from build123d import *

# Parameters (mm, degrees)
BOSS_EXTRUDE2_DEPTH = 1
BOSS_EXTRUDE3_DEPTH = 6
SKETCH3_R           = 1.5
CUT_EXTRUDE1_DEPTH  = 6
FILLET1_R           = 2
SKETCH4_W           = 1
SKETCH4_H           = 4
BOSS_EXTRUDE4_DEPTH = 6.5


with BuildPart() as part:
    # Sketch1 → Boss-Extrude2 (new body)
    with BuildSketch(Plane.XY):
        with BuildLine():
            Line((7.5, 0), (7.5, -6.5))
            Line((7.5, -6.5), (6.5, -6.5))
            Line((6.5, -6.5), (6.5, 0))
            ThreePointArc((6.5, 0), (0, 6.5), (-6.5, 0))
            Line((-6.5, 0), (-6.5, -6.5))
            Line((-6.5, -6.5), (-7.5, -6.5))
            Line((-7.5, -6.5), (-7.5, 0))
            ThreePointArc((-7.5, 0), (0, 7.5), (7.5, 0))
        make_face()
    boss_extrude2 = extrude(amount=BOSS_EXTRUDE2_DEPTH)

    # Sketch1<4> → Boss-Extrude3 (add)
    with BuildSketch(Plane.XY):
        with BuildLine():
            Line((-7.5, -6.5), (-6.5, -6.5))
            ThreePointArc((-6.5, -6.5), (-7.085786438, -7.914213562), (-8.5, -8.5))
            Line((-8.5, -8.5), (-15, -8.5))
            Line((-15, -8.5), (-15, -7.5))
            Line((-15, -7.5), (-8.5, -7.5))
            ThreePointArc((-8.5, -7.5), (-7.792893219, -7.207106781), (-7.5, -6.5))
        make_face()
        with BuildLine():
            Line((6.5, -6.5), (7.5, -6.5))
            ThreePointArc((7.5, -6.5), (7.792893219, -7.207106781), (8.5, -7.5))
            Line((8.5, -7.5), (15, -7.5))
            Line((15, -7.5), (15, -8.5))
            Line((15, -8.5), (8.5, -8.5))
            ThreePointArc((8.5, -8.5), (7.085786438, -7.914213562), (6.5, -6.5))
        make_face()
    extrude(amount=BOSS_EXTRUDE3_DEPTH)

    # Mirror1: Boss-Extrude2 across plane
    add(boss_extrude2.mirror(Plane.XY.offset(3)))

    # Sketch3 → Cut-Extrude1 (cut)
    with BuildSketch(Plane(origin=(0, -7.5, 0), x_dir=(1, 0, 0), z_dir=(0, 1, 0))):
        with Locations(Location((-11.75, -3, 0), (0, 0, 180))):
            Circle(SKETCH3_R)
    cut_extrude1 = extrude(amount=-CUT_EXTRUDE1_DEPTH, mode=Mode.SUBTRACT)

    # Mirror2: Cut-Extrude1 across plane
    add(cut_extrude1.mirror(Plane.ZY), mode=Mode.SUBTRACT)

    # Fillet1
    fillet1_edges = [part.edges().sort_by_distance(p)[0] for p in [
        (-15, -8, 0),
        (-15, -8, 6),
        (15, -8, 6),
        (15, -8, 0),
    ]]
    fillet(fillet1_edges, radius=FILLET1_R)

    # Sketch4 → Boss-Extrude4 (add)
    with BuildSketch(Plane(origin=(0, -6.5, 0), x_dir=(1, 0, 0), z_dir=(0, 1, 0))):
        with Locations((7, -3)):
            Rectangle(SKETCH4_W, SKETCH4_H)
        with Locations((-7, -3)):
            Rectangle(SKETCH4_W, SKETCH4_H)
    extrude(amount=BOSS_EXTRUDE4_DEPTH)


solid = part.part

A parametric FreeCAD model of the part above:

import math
import FreeCAD as App
import Part
import Sketcher

V = App.Vector
Q = App.Units.Quantity


def edges_at(feature, points):
    """Names of the edges that pass closest to the given points."""
    edges = feature.Shape.Edges
    near = lambda p: min(range(len(edges)), key=lambda i: edges[i].distToShape(Part.Vertex(*p))[0])
    return sorted({f"Edge{near(p) + 1}" for p in points})


def add_polygon(sketch, points):
    """Adds a closed chain of lines whose ends are joined by coincident constraints."""
    first, n = sketch.GeometryCount, len(points)
    for a, b in zip(points, points[1:] + points[:1]):
        sketch.addGeometry(Part.LineSegment(App.Vector(*a, 0), App.Vector(*b, 0)), False)
    for i in range(n):
        sketch.addConstraint(Sketcher.Constraint("Coincident", first + i, 2, first + (i + 1) % n, 1))

doc = App.newDocument("Part")
body = doc.addObject("PartDesign::Body", "Body")

# Sketch on XY plane
sketch1 = body.newObject("Sketcher::SketchObject", "Sketch")
sketch1.AttachmentSupport = (doc.getObject("XY_Plane"), [""])
sketch1.MapMode = "FlatFace"
sketch1.addGeometry(Part.LineSegment(V(7.5, -6.5, 0), V(7.5, 0, 0)), False)
sketch1.addGeometry(Part.ArcOfCircle(Part.Circle(V(0, 0, 0), V(0, 0, 1), 7.5), math.radians(0), math.radians(180)), False)
sketch1.addGeometry(Part.LineSegment(V(-7.5, 0, 0), V(-7.5, -6.5, 0)), False)
sketch1.addGeometry(Part.LineSegment(V(-7.5, -6.5, 0), V(-6.5, -6.5, 0)), False)
sketch1.addGeometry(Part.LineSegment(V(-6.5, -6.5, 0), V(-6.5, 0, 0)), False)
sketch1.addGeometry(Part.ArcOfCircle(Part.Circle(V(0, 0, 0), V(0, 0, 1), 6.5), math.radians(0), math.radians(180)), False)
sketch1.addGeometry(Part.LineSegment(V(6.5, 0, 0), V(6.5, -6.5, 0)), False)
sketch1.addGeometry(Part.LineSegment(V(6.5, -6.5, 0), V(7.5, -6.5, 0)), False)
sketch1.addConstraint(Sketcher.Constraint("Tangent", 0, 2, 1, 1))
sketch1.addConstraint(Sketcher.Constraint("Tangent", 1, 2, 2, 1))
sketch1.addConstraint(Sketcher.Constraint("Coincident", 2, 2, 3, 1))
sketch1.addConstraint(Sketcher.Constraint("Coincident", 3, 2, 4, 1))
sketch1.addConstraint(Sketcher.Constraint("Tangent", 4, 2, 5, 2))
sketch1.addConstraint(Sketcher.Constraint("Tangent", 5, 1, 6, 1))
sketch1.addConstraint(Sketcher.Constraint("Coincident", 6, 2, 7, 1))
sketch1.addConstraint(Sketcher.Constraint("Coincident", 7, 2, 0, 1))
sketch1.addConstraint(Sketcher.Constraint("Vertical", 0))
sketch1.addConstraint(Sketcher.Constraint("Vertical", 2))
sketch1.addConstraint(Sketcher.Constraint("Horizontal", 3))
sketch1.addConstraint(Sketcher.Constraint("Vertical", 4))
sketch1.addConstraint(Sketcher.Constraint("Vertical", 6))
sketch1.addConstraint(Sketcher.Constraint("Horizontal", 7))
sketch1.addConstraint(Sketcher.Constraint("Coincident", 1, 3, -1, 1))
sketch1.addConstraint(Sketcher.Constraint("Coincident", 5, 3, -1, 1))
sketch1.addConstraint(Sketcher.Constraint("Horizontal", 3, 2, 6, 2))
sketch1.addConstraint(Sketcher.Constraint("Radius", 1, Q("7.5 mm")))
sketch1.addConstraint(Sketcher.Constraint("Radius", 5, Q("6.5 mm")))
sketch1.addConstraint(Sketcher.Constraint("DistanceY", 0, 1, 0, 2, Q("6.5 mm")))
pad1 = body.newObject("PartDesign::Pad", "Pad")
pad1.Profile = sketch1
pad1.Length = 1

# Sketch on XY plane
sketch2 = body.newObject("Sketcher::SketchObject", "Sketch001")
sketch2.AttachmentSupport = (doc.getObject("XY_Plane"), [""])
sketch2.MapMode = "FlatFace"
sketch2.addGeometry(Part.LineSegment(V(-6.5, -6.5, 0), V(-7.5, -6.5, 0)), False)
sketch2.addGeometry(Part.ArcOfCircle(Part.Circle(V(-8.5, -6.5, 0), V(0, 0, 1), 1), math.radians(-90), math.radians(0)), False)
sketch2.addGeometry(Part.LineSegment(V(-8.5, -7.5, 0), V(-15, -7.5, 0)), False)
sketch2.addGeometry(Part.LineSegment(V(-15, -7.5, 0), V(-15, -8.5, 0)), False)
sketch2.addGeometry(Part.LineSegment(V(-15, -8.5, 0), V(-8.5, -8.5, 0)), False)
sketch2.addGeometry(Part.ArcOfCircle(Part.Circle(V(-8.5, -6.5, 0), V(0, 0, 1), 2), math.radians(-90), math.radians(0)), False)
sketch2.addGeometry(Part.LineSegment(V(7.5, -6.5, 0), V(6.5, -6.5, 0)), False)
sketch2.addGeometry(Part.ArcOfCircle(Part.Circle(V(8.5, -6.5, 0), V(0, 0, 1), 2), math.radians(-180), math.radians(-90)), False)
sketch2.addGeometry(Part.LineSegment(V(8.5, -8.5, 0), V(15, -8.5, 0)), False)
sketch2.addGeometry(Part.LineSegment(V(15, -8.5, 0), V(15, -7.5, 0)), False)
sketch2.addGeometry(Part.LineSegment(V(15, -7.5, 0), V(8.5, -7.5, 0)), False)
sketch2.addGeometry(Part.ArcOfCircle(Part.Circle(V(8.5, -6.5, 0), V(0, 0, 1), 1), math.radians(-180), math.radians(-90)), False)
sketch2.addConstraint(Sketcher.Constraint("Coincident", 0, 2, 1, 2))
sketch2.addConstraint(Sketcher.Constraint("Tangent", 1, 1, 2, 1))
sketch2.addConstraint(Sketcher.Constraint("Coincident", 2, 2, 3, 1))
sketch2.addConstraint(Sketcher.Constraint("Coincident", 3, 2, 4, 1))
sketch2.addConstraint(Sketcher.Constraint("Tangent", 4, 2, 5, 1))
sketch2.addConstraint(Sketcher.Constraint("Coincident", 5, 2, 0, 1))
sketch2.addConstraint(Sketcher.Constraint("Coincident", 6, 2, 7, 1))
sketch2.addConstraint(Sketcher.Constraint("Tangent", 7, 2, 8, 1))
sketch2.addConstraint(Sketcher.Constraint("Coincident", 8, 2, 9, 1))
sketch2.addConstraint(Sketcher.Constraint("Coincident", 9, 2, 10, 1))
sketch2.addConstraint(Sketcher.Constraint("Tangent", 10, 2, 11, 2))
sketch2.addConstraint(Sketcher.Constraint("Coincident", 11, 1, 6, 1))
sketch2.addConstraint(Sketcher.Constraint("Horizontal", 0))
sketch2.addConstraint(Sketcher.Constraint("Horizontal", 2))
sketch2.addConstraint(Sketcher.Constraint("Vertical", 3))
sketch2.addConstraint(Sketcher.Constraint("Horizontal", 4))
sketch2.addConstraint(Sketcher.Constraint("Horizontal", 6))
sketch2.addConstraint(Sketcher.Constraint("Horizontal", 8))
sketch2.addConstraint(Sketcher.Constraint("Vertical", 9))
sketch2.addConstraint(Sketcher.Constraint("Horizontal", 10))
sketch2.addConstraint(Sketcher.Constraint("Coincident", 5, 3, 1, 3))
sketch2.addConstraint(Sketcher.Constraint("Coincident", 11, 3, 7, 3))
sketch2.addConstraint(Sketcher.Constraint("Equal", 5, 7))
sketch2.addConstraint(Sketcher.Constraint("Equal", 1, 11))
sketch2.addConstraint(Sketcher.Constraint("Symmetric", 1, 3, 7, 3, -2))
sketch2.addConstraint(Sketcher.Constraint("Horizontal", 11, 3, 0, 2))
sketch2.addConstraint(Sketcher.Constraint("Horizontal", 5, 2, 6, 2))
sketch2.addConstraint(Sketcher.Constraint("Equal", 4, 8))
sketch2.addConstraint(Sketcher.Constraint("Radius", 1, Q("1 mm")))
sketch2.addConstraint(Sketcher.Constraint("Radius", 5, Q("2 mm")))
sketch2.addConstraint(Sketcher.Constraint("DistanceX", 2, 2, 2, 1, Q("6.5 mm")))
sketch2.addConstraint(Sketcher.Constraint("DistanceX", 2, 2, -1, 1, Q("15 mm")))
sketch2.addConstraint(Sketcher.Constraint("DistanceY", 1, 3, -1, 1, Q("6.5 mm")))
pad2 = body.newObject("PartDesign::Pad", "Pad001")
pad2.Profile = sketch2
pad2.Length = 6
doc.recompute()

datumplane = body.newObject("PartDesign::Plane", "DatumPlane")
datumplane.AttachmentSupport = (doc.getObject("XY_Plane"), [""])
datumplane.MapMode = "FlatFace"
datumplane.AttachmentOffset = App.Placement(V(0, 0, 3), App.Rotation())
mirrored = body.newObject("PartDesign::Mirrored", "Mirrored")
mirrored.Originals = [pad1]
mirrored.MirrorPlane = (datumplane, [""])
body.Tip = mirrored

# Sketch on XZ plane
sketch3 = body.newObject("Sketcher::SketchObject", "Sketch002")
sketch3.AttachmentSupport = (doc.getObject("XZ_Plane"), [""])
sketch3.MapMode = "FlatFace"
sketch3.AttachmentOffset = App.Placement(V(0, 0, 7.5), App.Rotation())
sketch3.addGeometry(Part.Circle(V(-11.8, 3, 0), V(0, 0, 1), 1.5), False)
sketch3.addConstraint(Sketcher.Constraint("Diameter", 0, Q("3 mm")))
sketch3.addConstraint(Sketcher.Constraint("DistanceY", -1, 1, 0, 3, Q("3 mm")))
sketch3.addConstraint(Sketcher.Constraint("DistanceX", 0, 3, -1, 1, Q("11.75 mm")))
pocket1 = body.newObject("PartDesign::Pocket", "Pocket")
pocket1.Profile = sketch3
pocket1.Length = 6
pocket1.Reversed = True
doc.recompute()

mirrored2 = body.newObject("PartDesign::Mirrored", "Mirrored001")
mirrored2.Originals = [pocket1]
mirrored2.MirrorPlane = (doc.getObject("YZ_Plane"), [""])
body.Tip = mirrored2
doc.recompute()

fillet = body.newObject("PartDesign::Fillet", "Fillet")
fillet.Base = (mirrored2, edges_at(mirrored2, [
    (-15, -8, 0),
    (-15, -8, 6),
    (15, -8, 6),
    (15, -8, 0),
]))
fillet.Radius = 2

# Sketch on XZ plane
sketch4 = body.newObject("Sketcher::SketchObject", "Sketch003")
sketch4.AttachmentSupport = (doc.getObject("XZ_Plane"), [""])
sketch4.MapMode = "FlatFace"
sketch4.AttachmentOffset = App.Placement(V(0, 0, 6.5), App.Rotation())
add_polygon(sketch4, [(6.5, 1), (6.5, 5), (7.5, 5), (7.5, 1)])  # lines 0-3
add_polygon(sketch4, [(-7.5, 1), (-7.5, 5), (-6.5, 5), (-6.5, 1)])  # lines 4-7
sketch4.addConstraint(Sketcher.Constraint("Vertical", 0))
sketch4.addConstraint(Sketcher.Constraint("Horizontal", 1))
sketch4.addConstraint(Sketcher.Constraint("Vertical", 2))
sketch4.addConstraint(Sketcher.Constraint("Horizontal", 3))
sketch4.addConstraint(Sketcher.Constraint("Vertical", 4))
sketch4.addConstraint(Sketcher.Constraint("Horizontal", 5))
sketch4.addConstraint(Sketcher.Constraint("Vertical", 6))
sketch4.addConstraint(Sketcher.Constraint("Horizontal", 7))
sketch4.addConstraint(Sketcher.Constraint("Symmetric", 1, 2, 4, 2, -2))
sketch4.addConstraint(Sketcher.Constraint("Symmetric", 3, 2, 6, 2, -2))
sketch4.addConstraint(Sketcher.Constraint("DistanceX", 1, 1, 1, 2, Q("1 mm")))
sketch4.addConstraint(Sketcher.Constraint("DistanceY", 0, 1, 0, 2, Q("4 mm")))
sketch4.addConstraint(Sketcher.Constraint("DistanceY", -1, 1, 0, 2, Q("5 mm")))
sketch4.addConstraint(Sketcher.Constraint("DistanceX", 4, 2, 0, 2, Q("14 mm")))
pad3 = body.newObject("PartDesign::Pad", "Pad002")
pad3.Profile = sketch4
pad3.Length = 6.5
pad3.Reversed = True

doc.recompute()
